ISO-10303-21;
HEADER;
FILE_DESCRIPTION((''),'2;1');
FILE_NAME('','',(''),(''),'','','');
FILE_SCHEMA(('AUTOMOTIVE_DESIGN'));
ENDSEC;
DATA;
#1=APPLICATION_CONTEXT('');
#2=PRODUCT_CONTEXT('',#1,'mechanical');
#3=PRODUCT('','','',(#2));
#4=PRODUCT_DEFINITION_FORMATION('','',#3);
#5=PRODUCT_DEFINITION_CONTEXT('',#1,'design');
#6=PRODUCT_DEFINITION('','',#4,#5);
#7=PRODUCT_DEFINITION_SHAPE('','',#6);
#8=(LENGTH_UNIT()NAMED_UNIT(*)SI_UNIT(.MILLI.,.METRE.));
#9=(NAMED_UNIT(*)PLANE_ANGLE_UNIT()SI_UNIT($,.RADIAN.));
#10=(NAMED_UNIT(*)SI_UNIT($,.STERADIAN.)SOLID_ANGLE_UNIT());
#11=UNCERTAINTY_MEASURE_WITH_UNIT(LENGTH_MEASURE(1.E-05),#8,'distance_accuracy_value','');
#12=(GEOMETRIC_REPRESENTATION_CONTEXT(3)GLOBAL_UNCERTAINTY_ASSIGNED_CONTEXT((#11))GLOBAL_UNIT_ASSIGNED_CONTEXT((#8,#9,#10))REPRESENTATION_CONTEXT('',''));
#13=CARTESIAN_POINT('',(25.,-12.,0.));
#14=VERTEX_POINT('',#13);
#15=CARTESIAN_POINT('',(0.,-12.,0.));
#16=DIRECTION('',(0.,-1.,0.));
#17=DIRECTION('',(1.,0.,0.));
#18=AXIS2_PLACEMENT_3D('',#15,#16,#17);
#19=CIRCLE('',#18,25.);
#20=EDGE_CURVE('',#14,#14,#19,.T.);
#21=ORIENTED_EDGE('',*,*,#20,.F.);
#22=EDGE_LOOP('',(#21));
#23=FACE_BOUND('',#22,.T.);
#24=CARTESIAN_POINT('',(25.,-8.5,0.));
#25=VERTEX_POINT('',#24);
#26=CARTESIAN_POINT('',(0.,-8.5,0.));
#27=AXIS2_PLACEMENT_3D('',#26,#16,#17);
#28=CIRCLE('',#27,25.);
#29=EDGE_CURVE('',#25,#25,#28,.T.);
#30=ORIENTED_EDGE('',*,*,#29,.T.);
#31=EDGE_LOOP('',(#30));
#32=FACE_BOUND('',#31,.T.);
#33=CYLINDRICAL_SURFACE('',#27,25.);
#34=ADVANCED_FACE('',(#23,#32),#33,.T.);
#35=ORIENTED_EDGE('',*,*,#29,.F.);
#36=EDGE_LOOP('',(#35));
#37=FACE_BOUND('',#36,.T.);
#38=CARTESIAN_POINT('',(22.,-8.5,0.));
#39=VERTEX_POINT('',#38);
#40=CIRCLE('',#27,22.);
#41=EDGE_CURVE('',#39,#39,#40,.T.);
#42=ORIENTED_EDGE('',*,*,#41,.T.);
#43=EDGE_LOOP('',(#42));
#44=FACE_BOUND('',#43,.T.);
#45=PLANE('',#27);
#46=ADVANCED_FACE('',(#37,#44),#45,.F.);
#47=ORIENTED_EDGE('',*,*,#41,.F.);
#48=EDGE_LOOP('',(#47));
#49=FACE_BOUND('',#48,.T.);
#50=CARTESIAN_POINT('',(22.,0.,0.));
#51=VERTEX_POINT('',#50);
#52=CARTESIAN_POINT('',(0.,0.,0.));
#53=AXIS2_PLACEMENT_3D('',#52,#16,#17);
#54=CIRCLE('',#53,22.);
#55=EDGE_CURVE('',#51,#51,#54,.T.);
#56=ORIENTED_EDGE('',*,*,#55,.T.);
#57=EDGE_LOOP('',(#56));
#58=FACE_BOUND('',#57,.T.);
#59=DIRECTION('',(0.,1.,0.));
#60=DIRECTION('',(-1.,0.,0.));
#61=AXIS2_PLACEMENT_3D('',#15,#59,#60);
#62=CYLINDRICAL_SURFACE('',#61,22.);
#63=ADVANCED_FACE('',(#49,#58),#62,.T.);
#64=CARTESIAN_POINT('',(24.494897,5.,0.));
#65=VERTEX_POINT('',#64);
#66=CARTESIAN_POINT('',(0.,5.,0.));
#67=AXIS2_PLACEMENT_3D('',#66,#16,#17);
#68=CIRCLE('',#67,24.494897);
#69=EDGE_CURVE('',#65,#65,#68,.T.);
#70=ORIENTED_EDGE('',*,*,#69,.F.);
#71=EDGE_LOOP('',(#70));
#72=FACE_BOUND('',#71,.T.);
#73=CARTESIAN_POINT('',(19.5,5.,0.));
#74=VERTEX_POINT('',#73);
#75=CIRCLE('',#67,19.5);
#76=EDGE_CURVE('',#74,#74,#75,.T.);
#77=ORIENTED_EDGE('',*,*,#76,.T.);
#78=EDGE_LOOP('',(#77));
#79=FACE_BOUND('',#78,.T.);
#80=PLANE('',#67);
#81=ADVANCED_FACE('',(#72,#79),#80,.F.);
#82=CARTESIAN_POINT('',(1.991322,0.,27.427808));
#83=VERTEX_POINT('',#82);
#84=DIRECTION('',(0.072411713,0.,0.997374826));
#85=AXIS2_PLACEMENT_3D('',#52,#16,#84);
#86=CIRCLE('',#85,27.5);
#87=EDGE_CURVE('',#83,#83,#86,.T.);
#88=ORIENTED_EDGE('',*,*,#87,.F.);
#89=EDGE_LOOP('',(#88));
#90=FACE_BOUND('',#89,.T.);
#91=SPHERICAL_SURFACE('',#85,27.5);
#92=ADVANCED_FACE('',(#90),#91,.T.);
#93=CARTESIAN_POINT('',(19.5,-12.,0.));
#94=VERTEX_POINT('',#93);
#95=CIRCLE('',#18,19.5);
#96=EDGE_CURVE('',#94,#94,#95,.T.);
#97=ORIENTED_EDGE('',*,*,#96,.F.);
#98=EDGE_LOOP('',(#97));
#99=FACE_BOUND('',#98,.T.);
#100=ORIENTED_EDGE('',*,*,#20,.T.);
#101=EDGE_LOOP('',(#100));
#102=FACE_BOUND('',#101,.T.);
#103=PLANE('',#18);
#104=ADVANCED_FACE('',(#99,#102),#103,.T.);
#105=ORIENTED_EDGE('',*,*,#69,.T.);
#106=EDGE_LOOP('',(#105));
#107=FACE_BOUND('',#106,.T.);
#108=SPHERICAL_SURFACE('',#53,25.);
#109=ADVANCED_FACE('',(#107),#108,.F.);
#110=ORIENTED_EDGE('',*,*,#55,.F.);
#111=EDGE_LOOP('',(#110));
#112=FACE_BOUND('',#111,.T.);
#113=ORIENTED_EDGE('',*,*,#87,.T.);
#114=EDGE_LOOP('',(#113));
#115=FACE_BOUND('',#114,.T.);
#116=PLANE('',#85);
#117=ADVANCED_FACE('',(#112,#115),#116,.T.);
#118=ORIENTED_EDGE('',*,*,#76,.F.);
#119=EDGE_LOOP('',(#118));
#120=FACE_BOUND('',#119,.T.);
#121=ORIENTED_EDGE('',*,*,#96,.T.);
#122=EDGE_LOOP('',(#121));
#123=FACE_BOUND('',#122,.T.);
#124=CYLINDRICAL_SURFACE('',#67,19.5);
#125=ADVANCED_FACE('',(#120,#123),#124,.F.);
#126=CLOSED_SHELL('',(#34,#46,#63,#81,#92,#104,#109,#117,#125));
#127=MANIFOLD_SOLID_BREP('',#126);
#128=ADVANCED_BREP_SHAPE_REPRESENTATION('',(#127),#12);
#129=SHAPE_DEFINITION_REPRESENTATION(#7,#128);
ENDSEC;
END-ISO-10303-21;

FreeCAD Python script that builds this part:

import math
import FreeCAD as App
import Part
import Sketcher
from FreeCAD import Vector

doc = App.newDocument("Part")
params = doc.addObject("Spreadsheet::Sheet", "Params")
for row, (alias, value) in enumerate([
    ("sketch1_radius", "27.5 mm"),
    ("revolution_angle", "180 deg"),
    ("sketch2_radius", "25 mm"),
    ("groove_angle", "360 deg"),
    ("pad1_length", "5 mm"),
    ("sketch4_diameter", "44 mm"),
    ("pad2_length", "12 mm"),
    ("sketch5_diameter", "50 mm"),
    ("pad3_length", "3.5 mm"),
    ("sketch6_diameter", "39 mm"),
    ("pocket1_length", "17 mm"),
], start=1):
    params.set(f"A{row}", alias)
    params.set(f"B{row}", "=" + value)
    params.setAlias(f"B{row}", alias)

body = doc.addObject("PartDesign::Body", "Body")

# Sketch on XZ plane
sketch1 = doc.addObject("Sketcher::SketchObject", "Sketch")
body.addObject(sketch1)
sketch1.AttachmentSupport = (doc.XZ_Plane, [""])
sketch1.MapMode = "FlatFace"
sketch1.addGeometry([
    Part.LineSegment(Vector(-1, -27, 0), Vector(1, 27, 0)),
    Part.ArcOfCircle(Part.Circle(Vector(0, 0, 0), Vector(0, 0, 1), 28), math.radians(-92), math.radians(88)),
], False)
sketch1.addGeometry(Part.LineSegment(Vector(-1, -27, 0), Vector(1, 27, 0)), True)  # axis
sketch1.addConstraint([
    Sketcher.Constraint("Coincident", 0, 1, 1, 1),
    Sketcher.Constraint("Coincident", 1, 2, 0, 2),
    Sketcher.Constraint("Coincident", 1, 3, -1, 1),
    Sketcher.Constraint("Coincident", 2, 1, 0, 1),
    Sketcher.Constraint("Coincident", 2, 2, 1, 2),
    Sketcher.Constraint("Radius", 1, 27.5),
    Sketcher.Constraint("DistanceX", 0, 1, 1, 2, 1.99263),
    Sketcher.Constraint("DistanceX", 0, 1, -1, 1, 0.996315),
])
sketch1.setExpression("Constraints[5]", "Params.sketch1_radius")
revolution = doc.addObject("PartDesign::Revolution", "Revolution")
body.addObject(revolution)
revolution.Profile = sketch1
revolution.ReferenceAxis = (sketch1, ["Axis0"])
revolution.setExpression("Angle", "Params.revolution_angle")

# Sketch on XZ plane
sketch2 = doc.addObject("Sketcher::SketchObject", "Sketch001")
body.addObject(sketch2)
sketch2.AttachmentSupport = (doc.XZ_Plane, [""])
sketch2.MapMode = "FlatFace"
sketch2.addGeometry([
    Part.LineSegment(Vector(0, 25, 0), Vector(0, -25, 0)),
    Part.ArcOfCircle(Part.Circle(Vector(0, 0, 0), Vector(0, 0, 1), 25), math.radians(-90), math.radians(90)),
], False)
sketch2.addConstraint([
    Sketcher.Constraint("Coincident", 0, 1, 1, 2),
    Sketcher.Constraint("Coincident", 1, 1, 0, 2),
    Sketcher.Constraint("Vertical", 0),
    Sketcher.Constraint("Coincident", 1, 3, -1, 1),
    Sketcher.Constraint("PointOnObject", 0, 1, -2),
    Sketcher.Constraint("Radius", 1, 25.0),
])
sketch2.setExpression("Constraints[5]", "Params.sketch2_radius")
groove = doc.addObject("PartDesign::Groove", "Groove")
body.addObject(groove)
groove.Profile = sketch2
groove.ReferenceAxis = (sketch2, ["V_Axis"])
groove.setExpression("Angle", "Params.groove_angle")

# Sketch on XZ plane
sketch3 = doc.addObject("Sketcher::SketchObject", "Sketch002")
body.addObject(sketch3)
sketch3.AttachmentSupport = (doc.XZ_Plane, [""])
sketch3.MapMode = "FlatFace"
sketch3.addGeometry(Part.Circle(Vector(0, 0, 0), Vector(0, 0, 1), 25), False)
sketch3.addConstraint([
    Sketcher.Constraint("Coincident", 0, 3, -1, 1),
    Sketcher.Constraint("Diameter", 0, 50.91543),
])
pad1 = doc.addObject("PartDesign::Pad", "Pad")
body.addObject(pad1)
pad1.Profile = sketch3
pad1.setExpression("Length", "Params.pad1_length")
pad1.Reversed = True

# Sketch on XZ plane
sketch4 = doc.addObject("Sketcher::SketchObject", "Sketch003")
body.addObject(sketch4)
sketch4.AttachmentSupport = (doc.XZ_Plane, [""])
sketch4.MapMode = "FlatFace"
sketch4.addGeometry(Part.Circle(Vector(0, 0, 0), Vector(0, 0, 1), 22), False)
sketch4.addConstraint([
    Sketcher.Constraint("Coincident", 0, 3, -1, 1),
    Sketcher.Constraint("Diameter", 0, 44.0),
])
sketch4.setExpression("Constraints[1]", "Params.sketch4_diameter")
pad2 = doc.addObject("PartDesign::Pad", "Pad001")
body.addObject(pad2)
pad2.Profile = sketch4
pad2.setExpression("Length", "Params.pad2_length")

# Sketch on XZ plane
sketch5 = doc.addObject("Sketcher::SketchObject", "Sketch004")
body.addObject(sketch5)
sketch5.AttachmentSupport = (doc.XZ_Plane, [""])
sketch5.MapMode = "FlatFace"
sketch5.AttachmentOffset = App.Placement(Vector(0, 0, 12), App.Rotation())
sketch5.addGeometry(Part.Circle(Vector(0, 0, 0), Vector(0, 0, 1), 25), False)
sketch5.addConstraint([
    Sketcher.Constraint("Coincident", 0, 3, -1, 1),
    Sketcher.Constraint("Diameter", 0, 50.0),
])
sketch5.setExpression("Constraints[1]", "Params.sketch5_diameter")
pad3 = doc.addObject("PartDesign::Pad", "Pad002")
body.addObject(pad3)
pad3.Profile = sketch5
pad3.setExpression("Length", "Params.pad3_length")
pad3.Reversed = True

# Sketch on XZ plane
sketch6 = doc.addObject("Sketcher::SketchObject", "Sketch005")
body.addObject(sketch6)
sketch6.AttachmentSupport = (doc.XZ_Plane, [""])
sketch6.MapMode = "FlatFace"
sketch6.AttachmentOffset = App.Placement(Vector(0, 0, 12), App.Rotation())
sketch6.addGeometry(Part.Circle(Vector(0, 0, 0), Vector(0, 0, 1), 20), False)
sketch6.addConstraint([
    Sketcher.Constraint("Coincident", 0, 3, -1, 1),
    Sketcher.Constraint("Diameter", 0, 39.0),
])
sketch6.setExpression("Constraints[1]", "Params.sketch6_diameter")
pocket1 = doc.addObject("PartDesign::Pocket", "Pocket")
body.addObject(pocket1)
pocket1.Profile = sketch6
pocket1.setExpression("Length", "Params.pocket1_length")

doc.recompute()
